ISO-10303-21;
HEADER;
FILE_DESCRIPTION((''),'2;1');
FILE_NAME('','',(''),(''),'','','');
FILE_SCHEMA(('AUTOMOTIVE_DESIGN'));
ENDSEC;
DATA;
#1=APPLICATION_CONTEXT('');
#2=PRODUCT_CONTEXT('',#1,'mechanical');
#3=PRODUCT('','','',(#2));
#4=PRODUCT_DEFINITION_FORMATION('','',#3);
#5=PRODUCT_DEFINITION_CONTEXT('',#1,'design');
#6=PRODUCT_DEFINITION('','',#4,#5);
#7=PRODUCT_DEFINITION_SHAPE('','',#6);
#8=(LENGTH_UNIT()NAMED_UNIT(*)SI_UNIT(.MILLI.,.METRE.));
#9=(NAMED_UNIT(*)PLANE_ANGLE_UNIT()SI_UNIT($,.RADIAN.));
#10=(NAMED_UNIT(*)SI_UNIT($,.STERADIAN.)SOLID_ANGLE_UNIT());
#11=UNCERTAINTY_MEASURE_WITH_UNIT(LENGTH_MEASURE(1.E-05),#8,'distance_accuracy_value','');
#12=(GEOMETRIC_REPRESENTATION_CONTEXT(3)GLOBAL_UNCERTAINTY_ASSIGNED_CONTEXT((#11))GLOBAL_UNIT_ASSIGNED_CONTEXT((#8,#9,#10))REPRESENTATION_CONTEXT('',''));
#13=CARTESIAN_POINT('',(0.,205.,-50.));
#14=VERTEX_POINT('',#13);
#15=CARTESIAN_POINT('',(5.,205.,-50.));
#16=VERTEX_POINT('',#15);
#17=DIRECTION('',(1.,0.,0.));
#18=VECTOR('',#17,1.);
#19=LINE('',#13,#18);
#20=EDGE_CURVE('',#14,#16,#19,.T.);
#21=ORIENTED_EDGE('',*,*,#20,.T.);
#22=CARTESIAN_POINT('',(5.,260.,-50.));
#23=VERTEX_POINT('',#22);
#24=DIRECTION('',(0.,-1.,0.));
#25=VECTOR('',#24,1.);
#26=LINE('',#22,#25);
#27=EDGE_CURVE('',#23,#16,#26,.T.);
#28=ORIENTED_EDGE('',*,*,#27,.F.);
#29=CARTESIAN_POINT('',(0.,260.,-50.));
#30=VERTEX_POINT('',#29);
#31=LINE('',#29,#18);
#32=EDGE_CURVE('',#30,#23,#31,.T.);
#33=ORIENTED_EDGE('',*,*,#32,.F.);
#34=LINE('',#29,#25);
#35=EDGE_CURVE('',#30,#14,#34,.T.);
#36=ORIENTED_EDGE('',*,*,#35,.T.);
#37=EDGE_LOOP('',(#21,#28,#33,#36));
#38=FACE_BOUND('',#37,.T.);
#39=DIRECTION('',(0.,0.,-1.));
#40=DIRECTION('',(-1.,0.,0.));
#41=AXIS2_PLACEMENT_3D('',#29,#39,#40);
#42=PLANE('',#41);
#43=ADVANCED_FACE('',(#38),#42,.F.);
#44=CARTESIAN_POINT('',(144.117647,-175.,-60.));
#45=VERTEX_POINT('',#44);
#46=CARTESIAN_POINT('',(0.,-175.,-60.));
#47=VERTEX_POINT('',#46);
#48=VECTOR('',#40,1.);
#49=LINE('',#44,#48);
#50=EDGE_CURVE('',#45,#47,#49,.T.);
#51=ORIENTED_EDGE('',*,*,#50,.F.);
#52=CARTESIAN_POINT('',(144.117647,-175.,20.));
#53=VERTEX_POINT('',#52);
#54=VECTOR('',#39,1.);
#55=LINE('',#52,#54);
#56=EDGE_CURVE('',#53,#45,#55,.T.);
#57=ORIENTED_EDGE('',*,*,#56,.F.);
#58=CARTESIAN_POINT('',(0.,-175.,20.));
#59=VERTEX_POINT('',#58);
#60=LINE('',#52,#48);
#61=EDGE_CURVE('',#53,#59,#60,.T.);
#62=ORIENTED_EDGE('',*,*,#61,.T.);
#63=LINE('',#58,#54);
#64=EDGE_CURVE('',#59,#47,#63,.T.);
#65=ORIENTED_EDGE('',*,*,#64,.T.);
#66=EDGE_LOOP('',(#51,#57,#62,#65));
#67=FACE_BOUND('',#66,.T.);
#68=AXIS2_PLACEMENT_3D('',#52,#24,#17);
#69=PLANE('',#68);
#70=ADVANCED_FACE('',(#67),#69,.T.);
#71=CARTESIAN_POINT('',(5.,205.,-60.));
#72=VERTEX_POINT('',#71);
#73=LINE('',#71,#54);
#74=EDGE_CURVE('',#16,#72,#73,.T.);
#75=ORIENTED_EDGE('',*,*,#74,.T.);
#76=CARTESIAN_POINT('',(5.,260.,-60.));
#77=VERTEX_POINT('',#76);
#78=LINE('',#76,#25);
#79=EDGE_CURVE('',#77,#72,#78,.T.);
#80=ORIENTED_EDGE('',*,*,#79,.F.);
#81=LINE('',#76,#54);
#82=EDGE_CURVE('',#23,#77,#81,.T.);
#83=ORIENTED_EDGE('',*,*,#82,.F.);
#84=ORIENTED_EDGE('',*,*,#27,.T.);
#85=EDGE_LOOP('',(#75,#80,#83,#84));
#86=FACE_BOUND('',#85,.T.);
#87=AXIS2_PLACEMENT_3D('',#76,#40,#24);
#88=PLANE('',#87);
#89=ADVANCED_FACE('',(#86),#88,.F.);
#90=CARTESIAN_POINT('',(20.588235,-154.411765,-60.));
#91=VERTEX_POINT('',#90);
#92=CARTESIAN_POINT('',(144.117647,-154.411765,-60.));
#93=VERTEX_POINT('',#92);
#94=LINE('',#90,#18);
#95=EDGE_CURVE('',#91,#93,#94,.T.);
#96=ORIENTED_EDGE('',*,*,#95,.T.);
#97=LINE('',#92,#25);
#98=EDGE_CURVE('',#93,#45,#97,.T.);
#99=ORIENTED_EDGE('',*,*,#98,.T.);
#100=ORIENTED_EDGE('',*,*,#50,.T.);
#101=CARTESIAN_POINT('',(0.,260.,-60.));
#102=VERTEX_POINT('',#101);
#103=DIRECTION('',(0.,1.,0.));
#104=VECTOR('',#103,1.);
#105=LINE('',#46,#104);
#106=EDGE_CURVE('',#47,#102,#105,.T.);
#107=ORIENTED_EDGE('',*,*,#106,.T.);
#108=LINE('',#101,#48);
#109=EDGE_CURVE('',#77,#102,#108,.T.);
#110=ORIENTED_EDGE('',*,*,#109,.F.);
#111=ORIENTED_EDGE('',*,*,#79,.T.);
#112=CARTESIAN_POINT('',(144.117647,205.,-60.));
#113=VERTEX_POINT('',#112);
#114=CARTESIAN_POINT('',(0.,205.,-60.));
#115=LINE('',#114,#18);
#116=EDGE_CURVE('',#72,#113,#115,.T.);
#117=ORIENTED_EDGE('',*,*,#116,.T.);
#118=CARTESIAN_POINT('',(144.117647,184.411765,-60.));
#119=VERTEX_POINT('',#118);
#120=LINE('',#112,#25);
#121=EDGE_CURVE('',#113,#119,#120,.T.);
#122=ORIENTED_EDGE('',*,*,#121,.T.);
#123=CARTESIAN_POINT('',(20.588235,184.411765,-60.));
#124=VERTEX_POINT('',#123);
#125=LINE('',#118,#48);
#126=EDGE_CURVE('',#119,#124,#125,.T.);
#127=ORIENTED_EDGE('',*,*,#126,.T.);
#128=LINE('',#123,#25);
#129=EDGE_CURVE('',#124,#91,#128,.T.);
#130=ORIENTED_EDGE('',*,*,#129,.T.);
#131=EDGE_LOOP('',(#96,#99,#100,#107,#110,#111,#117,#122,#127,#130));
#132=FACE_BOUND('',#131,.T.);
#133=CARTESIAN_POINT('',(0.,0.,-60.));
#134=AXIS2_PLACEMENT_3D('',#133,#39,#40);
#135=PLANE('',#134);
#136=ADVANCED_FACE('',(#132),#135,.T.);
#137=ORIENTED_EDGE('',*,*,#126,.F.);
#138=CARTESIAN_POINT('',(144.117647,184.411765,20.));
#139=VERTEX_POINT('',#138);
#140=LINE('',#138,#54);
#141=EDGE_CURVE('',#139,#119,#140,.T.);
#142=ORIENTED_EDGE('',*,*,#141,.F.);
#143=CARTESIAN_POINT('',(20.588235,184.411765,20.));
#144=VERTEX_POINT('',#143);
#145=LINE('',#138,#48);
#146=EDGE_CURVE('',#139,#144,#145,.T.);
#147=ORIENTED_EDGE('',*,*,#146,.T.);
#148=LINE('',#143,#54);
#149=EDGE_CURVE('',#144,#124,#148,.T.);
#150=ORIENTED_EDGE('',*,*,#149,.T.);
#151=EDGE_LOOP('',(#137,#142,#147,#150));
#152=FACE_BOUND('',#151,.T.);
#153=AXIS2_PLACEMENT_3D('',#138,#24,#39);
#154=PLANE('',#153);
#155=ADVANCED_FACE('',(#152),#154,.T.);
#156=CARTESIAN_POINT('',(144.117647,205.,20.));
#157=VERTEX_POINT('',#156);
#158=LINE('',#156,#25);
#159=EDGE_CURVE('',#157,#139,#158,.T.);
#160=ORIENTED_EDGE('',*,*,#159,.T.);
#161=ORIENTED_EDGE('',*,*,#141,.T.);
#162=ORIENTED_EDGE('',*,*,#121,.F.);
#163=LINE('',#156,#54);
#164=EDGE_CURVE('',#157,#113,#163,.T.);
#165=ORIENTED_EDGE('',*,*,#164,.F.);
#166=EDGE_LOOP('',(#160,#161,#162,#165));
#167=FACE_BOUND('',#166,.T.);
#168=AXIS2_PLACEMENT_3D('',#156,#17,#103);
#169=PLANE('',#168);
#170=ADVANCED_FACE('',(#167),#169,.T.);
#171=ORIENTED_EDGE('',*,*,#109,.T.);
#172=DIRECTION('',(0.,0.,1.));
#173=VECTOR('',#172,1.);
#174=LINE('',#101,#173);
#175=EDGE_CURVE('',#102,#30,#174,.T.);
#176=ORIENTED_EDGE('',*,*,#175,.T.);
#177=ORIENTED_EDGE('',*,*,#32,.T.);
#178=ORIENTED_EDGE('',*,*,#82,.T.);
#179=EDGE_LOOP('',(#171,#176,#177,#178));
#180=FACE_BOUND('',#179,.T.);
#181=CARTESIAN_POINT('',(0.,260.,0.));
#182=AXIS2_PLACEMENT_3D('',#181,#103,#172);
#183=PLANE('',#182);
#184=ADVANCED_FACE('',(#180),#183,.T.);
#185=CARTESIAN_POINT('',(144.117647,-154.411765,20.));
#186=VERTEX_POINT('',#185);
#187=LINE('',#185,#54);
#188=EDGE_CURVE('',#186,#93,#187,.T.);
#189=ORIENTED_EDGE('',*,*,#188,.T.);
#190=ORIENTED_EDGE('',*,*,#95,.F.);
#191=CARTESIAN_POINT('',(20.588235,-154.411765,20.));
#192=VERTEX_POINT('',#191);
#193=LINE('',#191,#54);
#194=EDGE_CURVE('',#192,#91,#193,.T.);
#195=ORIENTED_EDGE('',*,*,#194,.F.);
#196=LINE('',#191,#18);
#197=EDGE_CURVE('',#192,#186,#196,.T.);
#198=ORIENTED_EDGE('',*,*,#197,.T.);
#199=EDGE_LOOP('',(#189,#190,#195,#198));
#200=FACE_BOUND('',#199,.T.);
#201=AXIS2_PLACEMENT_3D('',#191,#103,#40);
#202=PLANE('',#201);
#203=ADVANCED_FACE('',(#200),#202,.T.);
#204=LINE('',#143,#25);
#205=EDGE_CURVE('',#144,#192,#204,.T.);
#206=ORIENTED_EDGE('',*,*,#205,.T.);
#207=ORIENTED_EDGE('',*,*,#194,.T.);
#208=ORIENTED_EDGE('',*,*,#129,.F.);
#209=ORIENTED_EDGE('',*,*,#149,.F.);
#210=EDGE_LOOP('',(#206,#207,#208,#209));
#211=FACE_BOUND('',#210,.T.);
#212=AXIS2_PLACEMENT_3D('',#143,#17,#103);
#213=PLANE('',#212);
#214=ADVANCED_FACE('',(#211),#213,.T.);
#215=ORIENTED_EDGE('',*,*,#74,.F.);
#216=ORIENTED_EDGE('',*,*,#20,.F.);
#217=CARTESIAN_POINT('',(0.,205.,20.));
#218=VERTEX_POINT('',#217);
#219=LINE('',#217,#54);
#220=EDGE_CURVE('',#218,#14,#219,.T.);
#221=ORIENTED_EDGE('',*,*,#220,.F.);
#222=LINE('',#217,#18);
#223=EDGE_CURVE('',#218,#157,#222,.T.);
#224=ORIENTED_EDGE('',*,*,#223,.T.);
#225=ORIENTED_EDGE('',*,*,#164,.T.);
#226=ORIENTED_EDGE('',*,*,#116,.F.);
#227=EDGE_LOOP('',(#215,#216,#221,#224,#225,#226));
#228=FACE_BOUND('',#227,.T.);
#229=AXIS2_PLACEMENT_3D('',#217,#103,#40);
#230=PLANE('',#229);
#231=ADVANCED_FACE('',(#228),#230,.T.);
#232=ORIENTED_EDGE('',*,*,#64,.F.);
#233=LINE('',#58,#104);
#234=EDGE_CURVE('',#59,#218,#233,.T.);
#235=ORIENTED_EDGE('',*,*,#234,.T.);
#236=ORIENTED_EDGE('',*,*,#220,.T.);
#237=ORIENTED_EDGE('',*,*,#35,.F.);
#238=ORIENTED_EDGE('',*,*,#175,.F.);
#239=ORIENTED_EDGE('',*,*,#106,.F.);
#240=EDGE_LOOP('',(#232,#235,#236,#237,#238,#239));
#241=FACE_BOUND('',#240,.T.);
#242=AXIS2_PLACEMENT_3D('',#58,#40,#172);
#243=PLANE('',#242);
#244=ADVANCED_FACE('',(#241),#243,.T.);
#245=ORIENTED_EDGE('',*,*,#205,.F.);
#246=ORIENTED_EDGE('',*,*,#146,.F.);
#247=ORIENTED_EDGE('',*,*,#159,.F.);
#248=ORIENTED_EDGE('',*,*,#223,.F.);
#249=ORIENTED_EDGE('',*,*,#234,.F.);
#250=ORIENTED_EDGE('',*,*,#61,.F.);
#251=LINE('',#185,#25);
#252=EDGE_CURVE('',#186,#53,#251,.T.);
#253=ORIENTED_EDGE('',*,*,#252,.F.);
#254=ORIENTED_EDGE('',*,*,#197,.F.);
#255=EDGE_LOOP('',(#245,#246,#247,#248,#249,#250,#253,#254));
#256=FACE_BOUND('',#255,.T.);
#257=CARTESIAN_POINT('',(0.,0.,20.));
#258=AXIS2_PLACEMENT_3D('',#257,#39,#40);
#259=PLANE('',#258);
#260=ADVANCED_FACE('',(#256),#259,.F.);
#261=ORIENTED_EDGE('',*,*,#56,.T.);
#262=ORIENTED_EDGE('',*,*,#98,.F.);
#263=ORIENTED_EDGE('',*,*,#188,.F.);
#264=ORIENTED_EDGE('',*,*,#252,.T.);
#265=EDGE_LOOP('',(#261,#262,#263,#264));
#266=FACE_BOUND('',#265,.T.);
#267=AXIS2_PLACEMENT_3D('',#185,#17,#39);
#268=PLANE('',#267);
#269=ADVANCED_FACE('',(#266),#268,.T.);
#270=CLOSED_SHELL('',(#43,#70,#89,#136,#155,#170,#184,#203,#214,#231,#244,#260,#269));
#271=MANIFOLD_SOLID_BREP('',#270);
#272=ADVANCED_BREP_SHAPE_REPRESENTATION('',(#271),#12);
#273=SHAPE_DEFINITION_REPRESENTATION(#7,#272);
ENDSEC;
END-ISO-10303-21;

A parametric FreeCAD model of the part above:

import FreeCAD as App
import Part
import Sketcher

V = App.Vector
Q = App.Units.Quantity

doc = App.newDocument("Part")
params = doc.addObject("Spreadsheet::Sheet", "Params")
for row, (alias, value) in enumerate([
    ("sketch1_height", "380 mm"),
    ("pad1_length", "80 mm"),
    ("sketch2_width", "5 mm"),
    ("sketch2_height", "10 mm"),
    ("pad2_length", "55 mm"),
], start=1):
    params.set(f"A{row}", alias)
    params.set(f"B{row}", "=" + value)
    params.setAlias(f"B{row}", alias)

body = doc.addObject("PartDesign::Body", "Body")

sketch1 = body.newObject("Sketcher::SketchObject", "Sketch")
sketch1.AttachmentSupport = (doc.getObject("XY_Plane"), [""])
sketch1.MapMode = "FlatFace"
sketch1.AttachmentOffset = App.Placement(V(0, 0, -60), App.Rotation())
sketch1.addGeometry(Part.LineSegment(V(144, -154, 0), V(144, -175, 0)), False)
sketch1.addGeometry(Part.LineSegment(V(144, -175, 0), V(0, -175, 0)), False)
sketch1.addGeometry(Part.LineSegment(V(0, -175, 0), V(0, 205, 0)), False)
sketch1.addGeometry(Part.LineSegment(V(0, 205, 0), V(144, 205, 0)), False)
sketch1.addGeometry(Part.LineSegment(V(144, 205, 0), V(144, 184, 0)), False)
sketch1.addGeometry(Part.LineSegment(V(144, 184, 0), V(21, 184, 0)), False)
sketch1.addGeometry(Part.LineSegment(V(21, 184, 0), V(21, -154, 0)), False)
sketch1.addGeometry(Part.LineSegment(V(21, -154, 0), V(144, -154, 0)), False)
sketch1.addConstraint(Sketcher.Constraint("Coincident", 0, 2, 1, 1))
sketch1.addConstraint(Sketcher.Constraint("Coincident", 1, 2, 2, 1))
sketch1.addConstraint(Sketcher.Constraint("Coincident", 2, 2, 3, 1))
sketch1.addConstraint(Sketcher.Constraint("Coincident", 3, 2, 4, 1))
sketch1.addConstraint(Sketcher.Constraint("Coincident", 4, 2, 5, 1))
sketch1.addConstraint(Sketcher.Constraint("Coincident", 5, 2, 6, 1))
sketch1.addConstraint(Sketcher.Constraint("Coincident", 6, 2, 7, 1))
sketch1.addConstraint(Sketcher.Constraint("Coincident", 7, 2, 0, 1))
sketch1.addConstraint(Sketcher.Constraint("Vertical", 0))
sketch1.addConstraint(Sketcher.Constraint("Horizontal", 1))
sketch1.addConstraint(Sketcher.Constraint("Vertical", 2))
sketch1.addConstraint(Sketcher.Constraint("Horizontal", 3))
sketch1.addConstraint(Sketcher.Constraint("Vertical", 4))
sketch1.addConstraint(Sketcher.Constraint("Horizontal", 5))
sketch1.addConstraint(Sketcher.Constraint("Vertical", 6))
sketch1.addConstraint(Sketcher.Constraint("Horizontal", 7))
sketch1.addConstraint(Sketcher.Constraint("PointOnObject", 1, 2, -2))
sketch1.addConstraint(Sketcher.Constraint("Vertical", 0, 2, 3, 2))
sketch1.addConstraint(Sketcher.Constraint("Equal", 0, 4))
sketch1.addConstraint(Sketcher.Constraint("DistanceY", 2, 1, 2, 2, Q("380 mm")))
sketch1.addConstraint(Sketcher.Constraint("DistanceY", 0, 2, -1, 1, Q("175 mm")))
sketch1.addConstraint(Sketcher.Constraint("DistanceX", 5, 2, 5, 1, Q("123.529412 mm")))
sketch1.addConstraint(Sketcher.Constraint("DistanceY", 6, 2, 6, 1, Q("338.823529 mm")))
sketch1.addConstraint(Sketcher.Constraint("DistanceX", 1, 2, 1, 1, Q("144.117647 mm")))
sketch1.setExpression("Constraints[19]", "Params.sketch1_height")
pad1 = body.newObject("PartDesign::Pad", "Pad")
pad1.Profile = sketch1
pad1.setExpression("Length", "Params.pad1_length")

sketch2 = body.newObject("Sketcher::SketchObject", "Sketch001")
sketch2.AttachmentSupport = (doc.getObject("XZ_Plane"), [""])
sketch2.MapMode = "FlatFace"
sketch2.AttachmentOffset = App.Placement(V(0, 0, -205), App.Rotation())
sketch2.addGeometry(Part.LineSegment(V(5, -50, 0), V(5, -60, 0)), False)
sketch2.addGeometry(Part.LineSegment(V(5, -60, 0), V(0, -60, 0)), False)
sketch2.addGeometry(Part.LineSegment(V(0, -60, 0), V(0, -50, 0)), False)
sketch2.addGeometry(Part.LineSegment(V(0, -50, 0), V(5, -50, 0)), False)
sketch2.addConstraint(Sketcher.Constraint("Coincident", 0, 2, 1, 1))
sketch2.addConstraint(Sketcher.Constraint("Coincident", 1, 2, 2, 1))
sketch2.addConstraint(Sketcher.Constraint("Coincident", 2, 2, 3, 1))
sketch2.addConstraint(Sketcher.Constraint("Coincident", 3, 2, 0, 1))
sketch2.addConstraint(Sketcher.Constraint("Vertical", 0))
sketch2.addConstraint(Sketcher.Constraint("Horizontal", 1))
sketch2.addConstraint(Sketcher.Constraint("Vertical", 2))
sketch2.addConstraint(Sketcher.Constraint("Horizontal", 3))
sketch2.addConstraint(Sketcher.Constraint("PointOnObject", 1, 2, -2))
sketch2.addConstraint(Sketcher.Constraint("DistanceX", 1, 2, 1, 1, Q("5 mm")))
sketch2.addConstraint(Sketcher.Constraint("DistanceY", 0, 2, 0, 1, Q("10 mm")))
sketch2.addConstraint(Sketcher.Constraint("DistanceY", 0, 2, -1, 1, Q("60 mm")))
sketch2.setExpression("Constraints[9]", "Params.sketch2_width")
sketch2.setExpression("Constraints[10]", "Params.sketch2_height")
pad2 = body.newObject("PartDesign::Pad", "Pad001")
pad2.Profile = sketch2
pad2.setExpression("Length", "Params.pad2_length")
pad2.Reversed = True

doc.recompute()
